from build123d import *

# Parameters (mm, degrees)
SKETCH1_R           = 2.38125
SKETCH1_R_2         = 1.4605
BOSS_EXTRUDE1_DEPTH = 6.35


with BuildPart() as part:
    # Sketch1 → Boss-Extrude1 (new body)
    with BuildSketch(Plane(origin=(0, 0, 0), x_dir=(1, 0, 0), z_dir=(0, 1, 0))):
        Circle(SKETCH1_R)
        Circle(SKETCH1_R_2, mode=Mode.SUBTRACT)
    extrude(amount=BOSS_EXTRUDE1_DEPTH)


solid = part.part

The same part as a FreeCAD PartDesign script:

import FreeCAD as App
import Part
import Sketcher
from FreeCAD import Vector
Q = App.Units.Quantity

doc = App.newDocument("Part")
params = doc.addObject("Spreadsheet::Sheet", "Params")
for row, (alias, value) in enumerate([
    ("sketch1_diameter", "0.1875 in"),
    ("sketch1_diameter2", "0.115 in"),
    ("pad1_length", "0.25 in"),
], start=1):
    params.set(f"A{row}", alias)
    params.set(f"B{row}", "=" + value)
    params.setAlias(f"B{row}", alias)

body = doc.addObject("PartDesign::Body", "Body")

sketch1 = doc.addObject("Sketcher::SketchObject", "Sketch")
body.addObject(sketch1)
sketch1.AttachmentSupport = (doc.XZ_Plane, [""])
sketch1.MapMode = "FlatFace"
sketch1.addGeometry(Part.Circle(Vector(0, 0, 0), Vector(0, 0, 1), 2.38125), False)
sketch1.addGeometry(Part.Circle(Vector(0, 0, 0), Vector(0, 0, 1), 1.4605), False)
sketch1.addConstraint(Sketcher.Constraint("Coincident", 0, 3, -1, 1))
sketch1.addConstraint(Sketcher.Constraint("Coincident", 1, 3, -1, 1))
sketch1.addConstraint(Sketcher.Constraint("Diameter", 0, Q("0.1875 in")))
sketch1.addConstraint(Sketcher.Constraint("Diameter", 1, Q("0.115 in")))
sketch1.setExpression("Constraints[2]", "Params.sketch1_diameter")
sketch1.setExpression("Constraints[3]", "Params.sketch1_diameter2")
pad1 = doc.addObject("PartDesign::Pad", "Pad")
body.addObject(pad1)
pad1.Profile = sketch1
pad1.setExpression("Length", "Params.pad1_length")
pad1.Reversed = True

doc.recompute()
